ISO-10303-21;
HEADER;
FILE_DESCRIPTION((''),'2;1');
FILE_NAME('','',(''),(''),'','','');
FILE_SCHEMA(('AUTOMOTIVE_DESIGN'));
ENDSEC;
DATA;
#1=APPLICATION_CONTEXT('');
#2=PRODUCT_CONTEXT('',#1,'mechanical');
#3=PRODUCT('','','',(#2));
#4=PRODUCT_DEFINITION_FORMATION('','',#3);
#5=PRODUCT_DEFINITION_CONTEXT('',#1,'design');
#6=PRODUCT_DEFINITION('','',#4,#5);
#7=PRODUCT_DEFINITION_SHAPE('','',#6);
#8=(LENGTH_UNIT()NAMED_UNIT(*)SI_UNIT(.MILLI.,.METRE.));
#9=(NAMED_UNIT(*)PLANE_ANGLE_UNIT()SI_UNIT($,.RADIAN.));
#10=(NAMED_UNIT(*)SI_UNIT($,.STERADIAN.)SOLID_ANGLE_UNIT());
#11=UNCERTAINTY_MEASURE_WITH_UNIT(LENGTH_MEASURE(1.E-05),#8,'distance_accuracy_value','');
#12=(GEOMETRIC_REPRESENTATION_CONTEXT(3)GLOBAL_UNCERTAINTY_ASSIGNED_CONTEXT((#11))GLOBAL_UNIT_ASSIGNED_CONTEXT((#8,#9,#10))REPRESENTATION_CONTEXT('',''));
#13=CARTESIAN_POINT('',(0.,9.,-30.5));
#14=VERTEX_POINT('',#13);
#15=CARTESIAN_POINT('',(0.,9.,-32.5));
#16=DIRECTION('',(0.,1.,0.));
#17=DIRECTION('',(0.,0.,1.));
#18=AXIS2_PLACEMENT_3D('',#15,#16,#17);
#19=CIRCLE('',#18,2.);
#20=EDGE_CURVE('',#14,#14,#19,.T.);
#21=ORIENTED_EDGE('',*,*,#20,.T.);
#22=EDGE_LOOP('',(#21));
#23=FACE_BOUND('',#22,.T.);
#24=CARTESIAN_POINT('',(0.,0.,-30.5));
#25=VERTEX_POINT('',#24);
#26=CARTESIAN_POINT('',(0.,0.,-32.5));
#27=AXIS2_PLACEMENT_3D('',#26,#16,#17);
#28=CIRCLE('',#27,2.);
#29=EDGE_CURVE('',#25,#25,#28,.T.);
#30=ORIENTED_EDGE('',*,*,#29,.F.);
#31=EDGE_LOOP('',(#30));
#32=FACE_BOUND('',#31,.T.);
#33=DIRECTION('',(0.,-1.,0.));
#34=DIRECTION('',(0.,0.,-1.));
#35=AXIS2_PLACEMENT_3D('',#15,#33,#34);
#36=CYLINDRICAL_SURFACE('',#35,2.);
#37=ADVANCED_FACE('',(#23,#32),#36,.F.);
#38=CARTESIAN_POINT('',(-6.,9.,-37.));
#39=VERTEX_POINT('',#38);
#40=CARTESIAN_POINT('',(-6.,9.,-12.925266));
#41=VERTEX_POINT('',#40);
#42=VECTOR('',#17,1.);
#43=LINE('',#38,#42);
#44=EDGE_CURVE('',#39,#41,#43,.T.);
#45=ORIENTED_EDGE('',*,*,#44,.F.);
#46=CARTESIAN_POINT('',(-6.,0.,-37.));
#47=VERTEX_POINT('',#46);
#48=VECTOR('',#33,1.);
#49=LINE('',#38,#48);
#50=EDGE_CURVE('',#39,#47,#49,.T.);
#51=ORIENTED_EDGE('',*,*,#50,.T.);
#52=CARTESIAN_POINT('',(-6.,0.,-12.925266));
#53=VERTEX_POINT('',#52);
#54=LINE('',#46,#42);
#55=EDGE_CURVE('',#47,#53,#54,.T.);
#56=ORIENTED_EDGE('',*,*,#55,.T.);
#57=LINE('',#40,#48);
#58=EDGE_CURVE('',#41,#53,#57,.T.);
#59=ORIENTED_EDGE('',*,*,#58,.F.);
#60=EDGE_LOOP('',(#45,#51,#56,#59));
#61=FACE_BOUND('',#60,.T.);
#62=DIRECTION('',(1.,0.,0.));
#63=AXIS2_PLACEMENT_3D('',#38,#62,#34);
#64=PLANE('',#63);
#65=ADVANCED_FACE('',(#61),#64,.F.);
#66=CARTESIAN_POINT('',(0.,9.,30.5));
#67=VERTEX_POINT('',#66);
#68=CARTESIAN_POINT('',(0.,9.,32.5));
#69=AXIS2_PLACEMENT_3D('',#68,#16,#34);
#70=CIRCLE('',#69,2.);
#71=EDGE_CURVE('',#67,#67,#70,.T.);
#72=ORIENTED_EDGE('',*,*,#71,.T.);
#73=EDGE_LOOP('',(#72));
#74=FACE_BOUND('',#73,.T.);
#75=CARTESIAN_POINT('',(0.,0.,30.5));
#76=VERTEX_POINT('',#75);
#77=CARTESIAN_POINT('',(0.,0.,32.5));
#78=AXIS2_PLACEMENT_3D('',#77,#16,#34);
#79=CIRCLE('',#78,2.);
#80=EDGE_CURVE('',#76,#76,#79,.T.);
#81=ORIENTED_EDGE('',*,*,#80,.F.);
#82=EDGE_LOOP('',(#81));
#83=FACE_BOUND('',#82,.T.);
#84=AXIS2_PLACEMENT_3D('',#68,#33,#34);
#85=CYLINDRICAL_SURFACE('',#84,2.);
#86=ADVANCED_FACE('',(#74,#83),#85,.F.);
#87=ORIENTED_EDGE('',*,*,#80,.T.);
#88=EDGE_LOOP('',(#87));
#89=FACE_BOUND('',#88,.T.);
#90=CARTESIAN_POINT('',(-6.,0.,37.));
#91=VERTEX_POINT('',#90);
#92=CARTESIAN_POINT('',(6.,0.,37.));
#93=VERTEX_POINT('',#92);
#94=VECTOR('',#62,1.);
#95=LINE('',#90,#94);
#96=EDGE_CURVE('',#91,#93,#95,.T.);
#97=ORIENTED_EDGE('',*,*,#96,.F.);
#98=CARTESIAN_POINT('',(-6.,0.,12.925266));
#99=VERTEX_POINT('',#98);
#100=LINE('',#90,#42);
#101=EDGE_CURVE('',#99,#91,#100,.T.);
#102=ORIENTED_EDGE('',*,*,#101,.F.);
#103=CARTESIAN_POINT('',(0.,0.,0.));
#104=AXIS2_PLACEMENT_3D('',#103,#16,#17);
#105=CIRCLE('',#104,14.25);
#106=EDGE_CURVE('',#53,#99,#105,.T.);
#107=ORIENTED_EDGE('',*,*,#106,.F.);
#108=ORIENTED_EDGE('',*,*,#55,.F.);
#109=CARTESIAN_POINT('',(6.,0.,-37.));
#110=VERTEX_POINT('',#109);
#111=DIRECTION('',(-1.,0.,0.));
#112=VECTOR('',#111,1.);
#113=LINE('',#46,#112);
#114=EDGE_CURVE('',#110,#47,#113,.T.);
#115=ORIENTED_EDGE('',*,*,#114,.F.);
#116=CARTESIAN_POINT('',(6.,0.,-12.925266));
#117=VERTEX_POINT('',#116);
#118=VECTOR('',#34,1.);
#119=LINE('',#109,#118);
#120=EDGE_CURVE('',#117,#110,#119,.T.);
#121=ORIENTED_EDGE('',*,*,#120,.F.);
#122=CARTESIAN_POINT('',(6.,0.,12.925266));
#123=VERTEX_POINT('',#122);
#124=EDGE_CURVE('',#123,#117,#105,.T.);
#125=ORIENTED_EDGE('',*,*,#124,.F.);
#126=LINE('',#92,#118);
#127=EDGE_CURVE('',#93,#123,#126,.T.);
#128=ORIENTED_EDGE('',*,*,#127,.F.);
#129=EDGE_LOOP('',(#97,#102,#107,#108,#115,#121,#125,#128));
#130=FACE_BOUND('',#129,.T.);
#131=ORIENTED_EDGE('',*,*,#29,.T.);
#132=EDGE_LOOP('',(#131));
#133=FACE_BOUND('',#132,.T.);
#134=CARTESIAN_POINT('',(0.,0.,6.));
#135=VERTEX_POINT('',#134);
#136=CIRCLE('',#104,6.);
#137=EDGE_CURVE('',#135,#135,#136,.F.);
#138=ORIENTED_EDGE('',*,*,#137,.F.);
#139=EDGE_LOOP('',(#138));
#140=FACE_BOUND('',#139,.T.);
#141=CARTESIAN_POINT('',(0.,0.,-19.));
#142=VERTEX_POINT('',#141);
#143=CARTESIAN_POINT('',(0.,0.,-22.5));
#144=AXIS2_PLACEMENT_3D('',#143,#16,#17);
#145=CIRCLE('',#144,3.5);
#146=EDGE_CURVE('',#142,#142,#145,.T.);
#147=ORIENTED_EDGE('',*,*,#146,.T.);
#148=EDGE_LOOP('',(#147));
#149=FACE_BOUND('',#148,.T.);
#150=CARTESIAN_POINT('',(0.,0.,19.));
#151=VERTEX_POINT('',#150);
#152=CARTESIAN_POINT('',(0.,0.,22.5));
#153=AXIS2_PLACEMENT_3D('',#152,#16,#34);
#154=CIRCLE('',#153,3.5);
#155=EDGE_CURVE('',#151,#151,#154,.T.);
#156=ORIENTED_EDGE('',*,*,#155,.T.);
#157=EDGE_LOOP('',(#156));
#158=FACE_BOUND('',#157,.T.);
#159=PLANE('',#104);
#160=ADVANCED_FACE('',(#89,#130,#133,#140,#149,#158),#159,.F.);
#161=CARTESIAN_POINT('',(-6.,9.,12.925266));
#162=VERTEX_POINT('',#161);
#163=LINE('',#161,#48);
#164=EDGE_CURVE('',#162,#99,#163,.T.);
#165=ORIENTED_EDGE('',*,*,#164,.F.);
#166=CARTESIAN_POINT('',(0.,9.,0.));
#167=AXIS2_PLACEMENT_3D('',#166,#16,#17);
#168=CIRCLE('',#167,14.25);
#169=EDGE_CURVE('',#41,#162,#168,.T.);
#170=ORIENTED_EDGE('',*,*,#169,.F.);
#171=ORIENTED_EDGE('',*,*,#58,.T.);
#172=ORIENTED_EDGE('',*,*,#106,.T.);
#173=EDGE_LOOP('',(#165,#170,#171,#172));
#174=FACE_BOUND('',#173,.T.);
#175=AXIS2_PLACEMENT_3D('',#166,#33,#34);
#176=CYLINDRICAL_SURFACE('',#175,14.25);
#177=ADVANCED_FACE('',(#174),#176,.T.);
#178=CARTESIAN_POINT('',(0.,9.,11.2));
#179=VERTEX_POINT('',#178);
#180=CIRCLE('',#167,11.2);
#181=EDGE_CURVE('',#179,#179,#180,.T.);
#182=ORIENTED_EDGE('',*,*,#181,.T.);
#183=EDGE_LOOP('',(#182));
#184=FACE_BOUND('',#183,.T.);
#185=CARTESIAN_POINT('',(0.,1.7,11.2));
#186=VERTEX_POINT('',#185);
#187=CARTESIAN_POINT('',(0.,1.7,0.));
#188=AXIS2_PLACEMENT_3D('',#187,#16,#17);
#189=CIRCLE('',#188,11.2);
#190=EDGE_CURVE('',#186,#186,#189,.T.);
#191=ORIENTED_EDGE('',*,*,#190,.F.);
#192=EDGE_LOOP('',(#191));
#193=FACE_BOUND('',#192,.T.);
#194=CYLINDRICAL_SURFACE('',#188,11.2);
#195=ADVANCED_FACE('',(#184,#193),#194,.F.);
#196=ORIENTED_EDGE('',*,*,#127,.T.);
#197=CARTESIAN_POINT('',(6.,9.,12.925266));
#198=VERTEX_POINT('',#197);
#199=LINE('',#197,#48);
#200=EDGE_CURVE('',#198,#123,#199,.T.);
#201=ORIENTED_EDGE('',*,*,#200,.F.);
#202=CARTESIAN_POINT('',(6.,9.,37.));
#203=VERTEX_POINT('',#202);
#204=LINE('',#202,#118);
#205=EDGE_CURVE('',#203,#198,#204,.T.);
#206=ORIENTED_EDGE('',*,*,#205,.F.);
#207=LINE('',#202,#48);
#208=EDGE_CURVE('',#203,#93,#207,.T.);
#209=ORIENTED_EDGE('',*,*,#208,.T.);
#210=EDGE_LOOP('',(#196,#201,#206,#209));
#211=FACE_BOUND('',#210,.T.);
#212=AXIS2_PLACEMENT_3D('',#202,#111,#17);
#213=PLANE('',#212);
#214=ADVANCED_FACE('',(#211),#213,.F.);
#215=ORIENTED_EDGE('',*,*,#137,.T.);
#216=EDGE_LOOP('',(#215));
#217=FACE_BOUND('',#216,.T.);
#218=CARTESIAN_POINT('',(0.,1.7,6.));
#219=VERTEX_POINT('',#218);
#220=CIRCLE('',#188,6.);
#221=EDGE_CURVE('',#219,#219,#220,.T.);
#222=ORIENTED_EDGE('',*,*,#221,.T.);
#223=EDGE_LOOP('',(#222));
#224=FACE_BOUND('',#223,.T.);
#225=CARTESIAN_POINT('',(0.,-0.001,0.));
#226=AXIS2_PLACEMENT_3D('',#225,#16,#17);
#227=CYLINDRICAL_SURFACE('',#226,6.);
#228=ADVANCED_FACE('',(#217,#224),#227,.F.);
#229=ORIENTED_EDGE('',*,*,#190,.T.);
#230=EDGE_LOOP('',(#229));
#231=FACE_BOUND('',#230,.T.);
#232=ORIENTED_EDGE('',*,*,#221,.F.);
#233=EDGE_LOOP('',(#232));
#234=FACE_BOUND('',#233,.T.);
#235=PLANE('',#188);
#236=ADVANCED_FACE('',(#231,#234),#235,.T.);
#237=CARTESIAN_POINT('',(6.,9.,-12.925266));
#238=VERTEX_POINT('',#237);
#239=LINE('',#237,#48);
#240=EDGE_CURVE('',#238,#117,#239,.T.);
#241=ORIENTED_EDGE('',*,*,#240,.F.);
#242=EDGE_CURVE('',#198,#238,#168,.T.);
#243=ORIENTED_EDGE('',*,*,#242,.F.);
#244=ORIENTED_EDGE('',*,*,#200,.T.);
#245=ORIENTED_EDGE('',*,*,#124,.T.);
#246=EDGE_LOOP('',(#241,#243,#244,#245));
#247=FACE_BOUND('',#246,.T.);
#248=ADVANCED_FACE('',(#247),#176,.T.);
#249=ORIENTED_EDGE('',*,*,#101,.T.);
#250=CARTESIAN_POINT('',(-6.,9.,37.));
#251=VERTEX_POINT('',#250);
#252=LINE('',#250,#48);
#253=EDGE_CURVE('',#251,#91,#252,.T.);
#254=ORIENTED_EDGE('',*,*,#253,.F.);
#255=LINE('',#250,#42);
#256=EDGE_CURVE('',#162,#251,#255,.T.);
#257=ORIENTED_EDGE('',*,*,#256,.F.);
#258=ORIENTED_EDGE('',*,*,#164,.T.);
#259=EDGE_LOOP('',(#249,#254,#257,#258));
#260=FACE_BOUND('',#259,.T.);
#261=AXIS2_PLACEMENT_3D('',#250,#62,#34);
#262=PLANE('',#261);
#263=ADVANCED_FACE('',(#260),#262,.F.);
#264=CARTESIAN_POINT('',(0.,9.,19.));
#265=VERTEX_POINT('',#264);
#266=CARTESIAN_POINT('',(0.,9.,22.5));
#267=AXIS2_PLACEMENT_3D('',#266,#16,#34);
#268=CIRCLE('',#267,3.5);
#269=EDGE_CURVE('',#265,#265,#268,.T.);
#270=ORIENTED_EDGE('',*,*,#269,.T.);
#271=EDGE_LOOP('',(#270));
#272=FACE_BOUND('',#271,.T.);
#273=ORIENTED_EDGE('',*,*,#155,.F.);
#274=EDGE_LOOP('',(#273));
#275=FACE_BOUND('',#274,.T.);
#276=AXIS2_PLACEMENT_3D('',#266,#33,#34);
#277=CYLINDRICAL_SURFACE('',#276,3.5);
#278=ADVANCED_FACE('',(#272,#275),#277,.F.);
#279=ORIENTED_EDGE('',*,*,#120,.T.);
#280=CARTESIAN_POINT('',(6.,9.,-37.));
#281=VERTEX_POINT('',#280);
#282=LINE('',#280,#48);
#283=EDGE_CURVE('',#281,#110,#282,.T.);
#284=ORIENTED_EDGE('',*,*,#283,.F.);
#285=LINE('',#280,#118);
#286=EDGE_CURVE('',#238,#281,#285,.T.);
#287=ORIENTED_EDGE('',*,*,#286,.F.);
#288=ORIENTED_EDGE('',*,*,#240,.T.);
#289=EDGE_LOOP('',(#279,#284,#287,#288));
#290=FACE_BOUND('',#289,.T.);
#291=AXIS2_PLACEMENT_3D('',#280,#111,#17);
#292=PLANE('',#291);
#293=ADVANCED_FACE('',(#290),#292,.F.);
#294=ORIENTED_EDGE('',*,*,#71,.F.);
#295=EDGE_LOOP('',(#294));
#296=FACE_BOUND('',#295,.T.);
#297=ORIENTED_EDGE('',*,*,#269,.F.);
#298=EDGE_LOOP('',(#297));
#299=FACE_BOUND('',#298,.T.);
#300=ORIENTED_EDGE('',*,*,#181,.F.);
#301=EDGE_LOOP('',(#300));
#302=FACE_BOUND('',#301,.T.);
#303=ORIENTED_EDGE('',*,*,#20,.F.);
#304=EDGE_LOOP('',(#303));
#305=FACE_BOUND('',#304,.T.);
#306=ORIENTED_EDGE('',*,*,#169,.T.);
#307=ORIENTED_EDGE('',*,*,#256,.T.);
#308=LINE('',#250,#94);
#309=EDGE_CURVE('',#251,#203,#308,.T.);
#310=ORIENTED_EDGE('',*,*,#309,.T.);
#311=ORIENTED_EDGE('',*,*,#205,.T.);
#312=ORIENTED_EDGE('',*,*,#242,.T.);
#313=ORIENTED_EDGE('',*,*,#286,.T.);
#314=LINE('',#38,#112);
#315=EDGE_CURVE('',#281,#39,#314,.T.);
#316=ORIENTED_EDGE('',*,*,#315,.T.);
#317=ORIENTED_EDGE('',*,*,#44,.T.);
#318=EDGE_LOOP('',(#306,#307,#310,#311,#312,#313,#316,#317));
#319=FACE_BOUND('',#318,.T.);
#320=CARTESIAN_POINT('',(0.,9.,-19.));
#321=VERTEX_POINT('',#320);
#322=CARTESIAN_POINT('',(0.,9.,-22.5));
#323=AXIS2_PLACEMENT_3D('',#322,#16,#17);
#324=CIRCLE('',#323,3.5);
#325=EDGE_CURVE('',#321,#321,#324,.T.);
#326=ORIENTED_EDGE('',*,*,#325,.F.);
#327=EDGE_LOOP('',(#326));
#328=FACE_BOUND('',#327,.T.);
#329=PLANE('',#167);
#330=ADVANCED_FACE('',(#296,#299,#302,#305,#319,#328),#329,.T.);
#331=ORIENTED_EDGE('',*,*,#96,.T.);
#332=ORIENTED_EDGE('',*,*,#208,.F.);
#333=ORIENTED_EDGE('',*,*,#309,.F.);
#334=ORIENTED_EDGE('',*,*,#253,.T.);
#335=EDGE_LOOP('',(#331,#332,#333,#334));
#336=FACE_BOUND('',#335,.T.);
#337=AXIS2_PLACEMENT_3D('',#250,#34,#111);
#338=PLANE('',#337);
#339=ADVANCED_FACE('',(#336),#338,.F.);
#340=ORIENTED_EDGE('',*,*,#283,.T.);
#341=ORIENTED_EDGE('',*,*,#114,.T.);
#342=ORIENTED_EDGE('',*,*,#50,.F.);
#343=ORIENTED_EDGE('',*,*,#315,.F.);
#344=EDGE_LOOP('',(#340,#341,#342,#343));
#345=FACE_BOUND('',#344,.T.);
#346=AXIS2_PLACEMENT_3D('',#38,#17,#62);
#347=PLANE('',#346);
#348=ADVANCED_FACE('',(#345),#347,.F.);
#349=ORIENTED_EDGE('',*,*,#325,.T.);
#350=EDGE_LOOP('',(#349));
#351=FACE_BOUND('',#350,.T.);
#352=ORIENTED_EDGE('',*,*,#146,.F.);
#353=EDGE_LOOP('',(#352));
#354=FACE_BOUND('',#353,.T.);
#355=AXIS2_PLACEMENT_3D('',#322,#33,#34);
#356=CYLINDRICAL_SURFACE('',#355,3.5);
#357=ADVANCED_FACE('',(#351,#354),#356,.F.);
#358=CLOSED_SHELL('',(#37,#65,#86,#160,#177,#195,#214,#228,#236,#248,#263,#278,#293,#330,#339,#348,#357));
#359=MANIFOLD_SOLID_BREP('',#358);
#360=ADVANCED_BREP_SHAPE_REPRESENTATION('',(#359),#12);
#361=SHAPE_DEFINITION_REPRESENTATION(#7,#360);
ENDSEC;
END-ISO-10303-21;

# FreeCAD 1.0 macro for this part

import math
import FreeCAD as App
import Part
import Sketcher
from FreeCAD import Vector
Q = App.Units.Quantity

doc = App.newDocument("Part")
body = doc.addObject("PartDesign::Body", "Body")

# Sketch on XZ plane
sketch1 = body.newObject("Sketcher::SketchObject", "Sketch")
sketch1.AttachmentSupport = (doc.getObject("XZ_Plane"), [""])
sketch1.MapMode = "FlatFace"
sketch1.addGeometry(Part.LineSegment(Vector(6, -37, 0), Vector(-6, -37, 0)), False)
sketch1.addGeometry(Part.LineSegment(Vector(-6, -37, 0), Vector(-6, -12.9, 0)), False)
sketch1.addGeometry(Part.ArcOfCircle(Part.Circle(Vector(0, 0, 0), Vector(0, 0, 1), 14.2), math.radians(115), math.radians(245)), False)
sketch1.addGeometry(Part.LineSegment(Vector(-6, 12.9, 0), Vector(-6, 37, 0)), False)
sketch1.addGeometry(Part.LineSegment(Vector(-6, 37, 0), Vector(6, 37, 0)), False)
sketch1.addGeometry(Part.LineSegment(Vector(6, 37, 0), Vector(6, 12.9, 0)), False)
sketch1.addGeometry(Part.ArcOfCircle(Part.Circle(Vector(0, 0, 0), Vector(0, 0, 1), 14.2), math.radians(-65), math.radians(65)), False)
sketch1.addGeometry(Part.LineSegment(Vector(6, -12.9, 0), Vector(6, -37, 0)), False)
sketch1.addGeometry(Part.Circle(Vector(0, 32.5, 0), Vector(0, 0, 1), 2), False)
sketch1.addGeometry(Part.Circle(Vector(0, 22.5, 0), Vector(0, 0, 1), 3.5), False)
sketch1.addGeometry(Part.Circle(Vector(0, -22.5, 0), Vector(0, 0, 1), 3.5), False)
sketch1.addGeometry(Part.Circle(Vector(0, -32.5, 0), Vector(0, 0, 1), 2), False)
sketch1.addConstraint(Sketcher.Constraint("Coincident", 0, 2, 1, 1))
sketch1.addConstraint(Sketcher.Constraint("Coincident", 1, 2, 2, 2))
sketch1.addConstraint(Sketcher.Constraint("Coincident", 2, 1, 3, 1))
sketch1.addConstraint(Sketcher.Constraint("Coincident", 3, 2, 4, 1))
sketch1.addConstraint(Sketcher.Constraint("Coincident", 4, 2, 5, 1))
sketch1.addConstraint(Sketcher.Constraint("Coincident", 5, 2, 6, 2))
sketch1.addConstraint(Sketcher.Constraint("Coincident", 6, 1, 7, 1))
sketch1.addConstraint(Sketcher.Constraint("Coincident", 7, 2, 0, 1))
sketch1.addConstraint(Sketcher.Constraint("Horizontal", 0))
sketch1.addConstraint(Sketcher.Constraint("Vertical", 1))
sketch1.addConstraint(Sketcher.Constraint("Vertical", 3))
sketch1.addConstraint(Sketcher.Constraint("Horizontal", 4))
sketch1.addConstraint(Sketcher.Constraint("Vertical", 5))
sketch1.addConstraint(Sketcher.Constraint("Vertical", 7))
sketch1.addConstraint(Sketcher.Constraint("Coincident", 2, 3, -1, 1))
sketch1.addConstraint(Sketcher.Constraint("Coincident", 6, 3, -1, 1))
sketch1.addConstraint(Sketcher.Constraint("Equal", 2, 6))
sketch1.addConstraint(Sketcher.Constraint("Equal", 9, 10))
sketch1.addConstraint(Sketcher.Constraint("Equal", 8, 11))
sketch1.addConstraint(Sketcher.Constraint("Symmetric", 9, 3, 10, 3, -1, 1))
sketch1.addConstraint(Sketcher.Constraint("Symmetric", 8, 3, 11, 3, -1, 1))
sketch1.addConstraint(Sketcher.Constraint("Symmetric", 0, 2, 4, 2, -1, 1))
sketch1.addConstraint(Sketcher.Constraint("PointOnObject", 8, 3, -2))
sketch1.addConstraint(Sketcher.Constraint("PointOnObject", 9, 3, -2))
sketch1.addConstraint(Sketcher.Constraint("Horizontal", 2, 1, 5, 2))
sketch1.addConstraint(Sketcher.Constraint("Horizontal", 1, 2, 6, 1))
sketch1.addConstraint(Sketcher.Constraint("Diameter", 8, Q("4 mm")))
sketch1.addConstraint(Sketcher.Constraint("Diameter", 9, Q("7 mm")))
sketch1.addConstraint(Sketcher.Constraint("DistanceX", 0, 2, 0, 1, Q("12 mm")))
sketch1.addConstraint(Sketcher.Constraint("Radius", 2, Q("14.25 mm")))
sketch1.addConstraint(Sketcher.Constraint("DistanceY", 0, 2, -1, 1, Q("37 mm")))
sketch1.addConstraint(Sketcher.Constraint("DistanceY", 9, 3, 8, 3, Q("10 mm")))
sketch1.addConstraint(Sketcher.Constraint("DistanceY", 10, 3, 9, 3, Q("45 mm")))
pad1 = body.newObject("PartDesign::Pad", "Pad")
pad1.Profile = sketch1
pad1.Length = 9
pad1.Reversed = True

# Sketch on XZ plane
sketch2 = body.newObject("Sketcher::SketchObject", "Sketch001")
sketch2.AttachmentSupport = (doc.getObject("XZ_Plane"), [""])
sketch2.MapMode = "FlatFace"
sketch2.AttachmentOffset = App.Placement(Vector(0, 0, -9), App.Rotation())
sketch2.addGeometry(Part.Circle(Vector(0, 0, 0), Vector(0, 0, 1), 11), False)
sketch2.addConstraint(Sketcher.Constraint("Coincident", 0, 3, -1, 1))
sketch2.addConstraint(Sketcher.Constraint("Diameter", 0, Q("22.4 mm")))
pocket1 = body.newObject("PartDesign::Pocket", "Pocket")
pocket1.Profile = sketch2
pocket1.Length = 7.3
pocket1.Reversed = True

# Sketch on XZ plane
sketch3 = body.newObject("Sketcher::SketchObject", "Sketch002")
sketch3.AttachmentSupport = (doc.getObject("XZ_Plane"), [""])
sketch3.MapMode = "FlatFace"
sketch3.AttachmentOffset = App.Placement(Vector(0, 0, -1.7), App.Rotation())
sketch3.addGeometry(Part.Circle(Vector(0, 0, 0), Vector(0, 0, 1), 6), False)
sketch3.addConstraint(Sketcher.Constraint("Coincident", 0, 3, -1, 1))
sketch3.addConstraint(Sketcher.Constraint("Diameter", 0, Q("12 mm")))
pocket2 = body.newObject("PartDesign::Pocket", "Pocket001")
pocket2.Profile = sketch3
pocket2.Type = "UpToFirst"
pocket2.Reversed = True

doc.recompute()
